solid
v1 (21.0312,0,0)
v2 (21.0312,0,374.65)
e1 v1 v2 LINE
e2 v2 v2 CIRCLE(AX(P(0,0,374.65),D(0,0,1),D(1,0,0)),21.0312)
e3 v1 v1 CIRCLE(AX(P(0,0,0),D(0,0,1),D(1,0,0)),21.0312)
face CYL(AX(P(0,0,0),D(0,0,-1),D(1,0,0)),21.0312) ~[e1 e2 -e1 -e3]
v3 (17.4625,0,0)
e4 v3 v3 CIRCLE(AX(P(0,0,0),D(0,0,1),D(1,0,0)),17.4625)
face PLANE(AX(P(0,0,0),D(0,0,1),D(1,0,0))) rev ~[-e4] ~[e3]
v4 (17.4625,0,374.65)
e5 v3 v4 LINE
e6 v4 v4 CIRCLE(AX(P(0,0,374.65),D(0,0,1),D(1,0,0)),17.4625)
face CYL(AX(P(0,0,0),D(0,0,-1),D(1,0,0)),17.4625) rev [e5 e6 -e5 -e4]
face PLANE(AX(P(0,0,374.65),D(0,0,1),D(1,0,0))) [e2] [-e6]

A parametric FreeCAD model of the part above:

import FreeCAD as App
import Part
import Sketcher

V = App.Vector
Q = App.Units.Quantity

doc = App.newDocument("Part")
params = doc.addObject("Spreadsheet::Sheet", "Params")
for row, (alias, value) in enumerate([
    ("sketch1_diameter", "1.656 in"),
    ("sketch1_diameter2", "1.375 in"),
    ("pad1_length", "14.75 in"),
], start=1):
    params.set(f"A{row}", alias)
    params.set(f"B{row}", "=" + value)
    params.setAlias(f"B{row}", alias)

body = doc.addObject("PartDesign::Body", "Body")

# Sketch on XY plane
sketch1 = body.newObject("Sketcher::SketchObject", "Sketch")
sketch1.AttachmentSupport = (doc.getObject("XY_Plane"), [""])
sketch1.MapMode = "FlatFace"
sketch1.addGeometry(Part.Circle(V(0, 0, 0), V(0, 0, 1), 21.0312), False)
sketch1.addGeometry(Part.Circle(V(0, 0, 0), V(0, 0, 1), 17.4625), False)
sketch1.addConstraint(Sketcher.Constraint("Coincident", 0, 3, -1, 1))
sketch1.addConstraint(Sketcher.Constraint("Coincident", 1, 3, -1, 1))
sketch1.addConstraint(Sketcher.Constraint("Diameter", 0, Q("1.656 in")))
sketch1.addConstraint(Sketcher.Constraint("Diameter", 1, Q("1.375 in")))
sketch1.setExpression("Constraints[2]", "Params.sketch1_diameter")
sketch1.setExpression("Constraints[3]", "Params.sketch1_diameter2")
pad1 = body.newObject("PartDesign::Pad", "Pad")
pad1.Profile = sketch1
pad1.setExpression("Length", "Params.pad1_length")

doc.recompute()
